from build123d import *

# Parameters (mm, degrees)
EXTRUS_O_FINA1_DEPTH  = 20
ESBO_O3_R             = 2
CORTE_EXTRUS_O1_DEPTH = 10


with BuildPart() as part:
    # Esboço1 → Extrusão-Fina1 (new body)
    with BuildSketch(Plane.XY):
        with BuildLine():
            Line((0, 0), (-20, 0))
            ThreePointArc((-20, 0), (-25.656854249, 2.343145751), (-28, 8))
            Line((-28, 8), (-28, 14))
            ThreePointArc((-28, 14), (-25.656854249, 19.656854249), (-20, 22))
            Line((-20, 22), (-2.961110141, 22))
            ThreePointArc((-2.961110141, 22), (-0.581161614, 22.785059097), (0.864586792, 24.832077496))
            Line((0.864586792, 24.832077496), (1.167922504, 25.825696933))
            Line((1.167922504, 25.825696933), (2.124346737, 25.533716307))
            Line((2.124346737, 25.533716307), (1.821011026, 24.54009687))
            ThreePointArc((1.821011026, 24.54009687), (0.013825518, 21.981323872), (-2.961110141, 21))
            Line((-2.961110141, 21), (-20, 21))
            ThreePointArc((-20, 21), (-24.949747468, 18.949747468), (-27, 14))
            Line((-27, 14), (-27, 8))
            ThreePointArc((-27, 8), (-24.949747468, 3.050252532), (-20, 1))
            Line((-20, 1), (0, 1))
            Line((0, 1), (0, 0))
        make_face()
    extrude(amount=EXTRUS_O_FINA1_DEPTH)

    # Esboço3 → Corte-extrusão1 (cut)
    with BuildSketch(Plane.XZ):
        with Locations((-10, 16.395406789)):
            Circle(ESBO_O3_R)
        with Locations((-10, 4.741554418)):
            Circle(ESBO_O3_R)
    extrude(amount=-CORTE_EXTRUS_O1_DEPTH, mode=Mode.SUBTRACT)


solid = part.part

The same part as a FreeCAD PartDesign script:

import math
import FreeCAD as App
import Part
import Sketcher

doc = App.newDocument("Part")
body = doc.addObject("PartDesign::Body", "Body")

sketch1 = body.newObject("Sketcher::SketchObject", "Sketch")
sketch1.AttachmentSupport = (doc.getObject("XY_Plane"), [""])
sketch1.MapMode = "FlatFace"
sketch1.addGeometry([
    Part.LineSegment(App.Vector(-20, 0, 0), App.Vector(0, 0, 0)),
    Part.LineSegment(App.Vector(0, 0, 0), App.Vector(0, 1, 0)),
    Part.LineSegment(App.Vector(0, 1, 0), App.Vector(-20, 1, 0)),
    Part.ArcOfCircle(Part.Circle(App.Vector(-20, 8, 0), App.Vector(0, 0, 1), 7), math.radians(-180), math.radians(-90)),
    Part.LineSegment(App.Vector(-27, 8, 0), App.Vector(-27, 14, 0)),
    Part.ArcOfCircle(Part.Circle(App.Vector(-20, 14, 0), App.Vector(0, 0, 1), 7), math.radians(90), math.radians(180)),
    Part.LineSegment(App.Vector(-20, 21, 0), App.Vector(-3, 21, 0)),
    Part.ArcOfCircle(Part.Circle(App.Vector(-3, 26, 0), App.Vector(0, 0, 1), 5), math.radians(-90), math.radians(-17)),
    Part.LineSegment(App.Vector(1.8, 24.5, 0), App.Vector(2.1, 25.5, 0)),
    Part.LineSegment(App.Vector(2.1, 25.5, 0), App.Vector(1.2, 25.8, 0)),
    Part.LineSegment(App.Vector(1.2, 25.8, 0), App.Vector(0.9, 24.8, 0)),
    Part.ArcOfCircle(Part.Circle(App.Vector(-3, 26, 0), App.Vector(0, 0, 1), 4), math.radians(-90), math.radians(-17)),
    Part.LineSegment(App.Vector(-3, 22, 0), App.Vector(-20, 22, 0)),
    Part.ArcOfCircle(Part.Circle(App.Vector(-20, 14, 0), App.Vector(0, 0, 1), 8), math.radians(90), math.radians(180)),
    Part.LineSegment(App.Vector(-28, 14, 0), App.Vector(-28, 8, 0)),
    Part.ArcOfCircle(Part.Circle(App.Vector(-20, 8, 0), App.Vector(0, 0, 1), 8), math.radians(-180), math.radians(-90)),
], False)
sketch1.addConstraint([
    Sketcher.Constraint("Coincident", 0, 2, 1, 1),
    Sketcher.Constraint("Coincident", 1, 2, 2, 1),
    Sketcher.Constraint("Tangent", 2, 2, 3, 2),
    Sketcher.Constraint("Tangent", 3, 1, 4, 1),
    Sketcher.Constraint("Tangent", 4, 2, 5, 2),
    Sketcher.Constraint("Tangent", 5, 1, 6, 1),
    Sketcher.Constraint("Tangent", 6, 2, 7, 1),
    Sketcher.Constraint("Tangent", 7, 2, 8, 1),
    Sketcher.Constraint("Coincident", 8, 2, 9, 1),
    Sketcher.Constraint("Coincident", 9, 2, 10, 1),
    Sketcher.Constraint("Tangent", 10, 2, 11, 2),
    Sketcher.Constraint("Tangent", 11, 1, 12, 1),
    Sketcher.Constraint("Tangent", 12, 2, 13, 1),
    Sketcher.Constraint("Tangent", 13, 2, 14, 1),
    Sketcher.Constraint("Tangent", 14, 2, 15, 1),
    Sketcher.Constraint("Tangent", 15, 2, 0, 1),
    Sketcher.Constraint("Horizontal", 0),
    Sketcher.Constraint("Vertical", 1),
    Sketcher.Constraint("Horizontal", 2),
    Sketcher.Constraint("Vertical", 4),
    Sketcher.Constraint("Horizontal", 6),
    Sketcher.Constraint("Horizontal", 12),
    Sketcher.Constraint("Vertical", 14),
    Sketcher.Constraint("Coincident", 0, 2, -1, 1),
    Sketcher.Constraint("Coincident", 11, 3, 7, 3),
    Sketcher.Constraint("Coincident", 13, 3, 5, 3),
    Sketcher.Constraint("Coincident", 15, 3, 3, 3),
    Sketcher.Constraint("Equal", 3, 5),
    Sketcher.Constraint("Perpendicular", 8, 9),
    Sketcher.Constraint("Perpendicular", 9, 10),
    Sketcher.Constraint("Radius", 3, 7.0),
    Sketcher.Constraint("Radius", 7, 5.0),
    Sketcher.Constraint("Radius", 11, 4.0),
    Sketcher.Constraint("DistanceX", 0, 1, 0, 2, 20.0),
    Sketcher.Constraint("DistanceY", 4, 1, 4, 2, 6.0),
    Sketcher.Constraint("DistanceX", 6, 1, 6, 2, 17.03889),
    Sketcher.Constraint("DistanceY", 7, 2, 9, 2, 1.2856),
    Sketcher.Constraint("Distance", 8, 1.03889),
])
pad1 = body.newObject("PartDesign::Pad", "Pad")
pad1.Profile = sketch1
pad1.Length = 20

sketch2 = body.newObject("Sketcher::SketchObject", "Sketch001")
sketch2.AttachmentSupport = (doc.getObject("XZ_Plane"), [""])
sketch2.MapMode = "FlatFace"
sketch2.addGeometry([
    Part.Circle(App.Vector(-10, 16.4, 0), App.Vector(0, 0, 1), 2),
    Part.Circle(App.Vector(-10, 4.7, 0), App.Vector(0, 0, 1), 2),
], False)
sketch2.addConstraint([
    Sketcher.Constraint("Equal", 0, 1),
    Sketcher.Constraint("Vertical", 0, 3, 1, 3),
    Sketcher.Constraint("Diameter", 0, 4.0),
    Sketcher.Constraint("DistanceX", 0, 3, -1, 1, 10.0),
    Sketcher.Constraint("DistanceY", -1, 1, 0, 3, 16.395407),
    Sketcher.Constraint("DistanceY", -1, 1, 1, 3, 4.741554),
])
pocket1 = body.newObject("PartDesign::Pocket", "Pocket")
pocket1.Profile = sketch2
pocket1.Length = 10

doc.recompute()
